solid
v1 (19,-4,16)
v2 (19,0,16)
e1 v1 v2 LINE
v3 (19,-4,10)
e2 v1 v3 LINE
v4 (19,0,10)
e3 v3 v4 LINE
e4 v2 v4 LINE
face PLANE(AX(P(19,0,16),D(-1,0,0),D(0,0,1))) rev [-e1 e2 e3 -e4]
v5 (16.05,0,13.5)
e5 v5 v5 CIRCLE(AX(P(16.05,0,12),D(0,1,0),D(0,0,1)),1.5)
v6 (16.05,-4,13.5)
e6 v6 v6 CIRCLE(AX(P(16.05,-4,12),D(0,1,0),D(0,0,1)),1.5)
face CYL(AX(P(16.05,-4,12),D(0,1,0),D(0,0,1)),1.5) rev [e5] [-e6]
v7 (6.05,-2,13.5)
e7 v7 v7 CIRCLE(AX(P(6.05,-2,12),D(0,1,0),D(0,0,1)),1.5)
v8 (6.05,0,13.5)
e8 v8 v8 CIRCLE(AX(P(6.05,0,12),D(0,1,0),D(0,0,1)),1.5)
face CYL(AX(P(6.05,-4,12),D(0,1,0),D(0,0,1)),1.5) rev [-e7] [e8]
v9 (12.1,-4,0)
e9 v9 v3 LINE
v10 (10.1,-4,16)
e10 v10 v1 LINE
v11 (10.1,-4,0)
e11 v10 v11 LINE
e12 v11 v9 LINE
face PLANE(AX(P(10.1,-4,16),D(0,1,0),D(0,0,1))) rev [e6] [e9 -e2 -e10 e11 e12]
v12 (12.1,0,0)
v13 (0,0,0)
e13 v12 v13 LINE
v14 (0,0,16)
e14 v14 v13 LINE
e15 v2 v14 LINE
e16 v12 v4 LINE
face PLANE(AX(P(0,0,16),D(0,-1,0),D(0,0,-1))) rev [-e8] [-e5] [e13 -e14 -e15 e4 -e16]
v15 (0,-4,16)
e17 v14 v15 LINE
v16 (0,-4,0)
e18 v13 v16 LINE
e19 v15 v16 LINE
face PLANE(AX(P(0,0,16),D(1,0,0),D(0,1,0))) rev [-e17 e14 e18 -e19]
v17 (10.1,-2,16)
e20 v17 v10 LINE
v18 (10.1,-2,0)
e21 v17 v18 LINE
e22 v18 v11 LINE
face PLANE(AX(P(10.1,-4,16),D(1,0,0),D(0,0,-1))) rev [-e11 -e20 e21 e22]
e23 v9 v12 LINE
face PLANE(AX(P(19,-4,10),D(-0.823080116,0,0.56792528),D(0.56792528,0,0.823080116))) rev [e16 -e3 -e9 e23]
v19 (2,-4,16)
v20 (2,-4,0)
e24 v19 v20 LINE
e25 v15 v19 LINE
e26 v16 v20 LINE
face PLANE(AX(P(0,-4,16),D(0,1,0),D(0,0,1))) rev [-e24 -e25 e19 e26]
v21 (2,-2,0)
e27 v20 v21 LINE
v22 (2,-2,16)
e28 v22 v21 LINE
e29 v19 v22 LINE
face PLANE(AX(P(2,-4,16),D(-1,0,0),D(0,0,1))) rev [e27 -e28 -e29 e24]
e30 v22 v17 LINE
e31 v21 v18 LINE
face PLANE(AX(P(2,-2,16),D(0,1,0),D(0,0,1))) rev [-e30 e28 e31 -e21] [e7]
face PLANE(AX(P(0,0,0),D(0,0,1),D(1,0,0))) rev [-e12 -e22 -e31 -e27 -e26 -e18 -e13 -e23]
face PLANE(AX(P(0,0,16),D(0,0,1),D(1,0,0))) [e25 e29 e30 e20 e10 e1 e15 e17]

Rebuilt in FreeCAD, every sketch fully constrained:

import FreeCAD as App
import Part
import Sketcher
from FreeCAD import Vector


def add_polygon(sketch, points):
    """Adds a closed chain of lines whose ends are joined by coincident constraints."""
    first, n = sketch.GeometryCount, len(points)
    for a, b in zip(points, points[1:] + points[:1]):
        sketch.addGeometry(Part.LineSegment(App.Vector(*a, 0), App.Vector(*b, 0)), False)
    for i in range(n):
        sketch.addConstraint(Sketcher.Constraint("Coincident", first + i, 2, first + (i + 1) % n, 1))

doc = App.newDocument("Part")
body = doc.addObject("PartDesign::Body", "Body")

sketch1 = body.newObject("Sketcher::SketchObject", "Sketch")
sketch1.AttachmentSupport = (doc.getObject("XY_Plane"), [""])
sketch1.MapMode = "FlatFace"
add_polygon(sketch1, [(10.1, -4), (19, -4), (19, 0), (0, 0), (0, -4), (2, -4), (2, -2), (10.1, -2)])
sketch1.addConstraint(Sketcher.Constraint("Horizontal", 0))
sketch1.addConstraint(Sketcher.Constraint("Vertical", 1))
sketch1.addConstraint(Sketcher.Constraint("Horizontal", 2))
sketch1.addConstraint(Sketcher.Constraint("Vertical", 3))
sketch1.addConstraint(Sketcher.Constraint("Horizontal", 4))
sketch1.addConstraint(Sketcher.Constraint("Vertical", 5))
sketch1.addConstraint(Sketcher.Constraint("Horizontal", 6))
sketch1.addConstraint(Sketcher.Constraint("Vertical", 7))
sketch1.addConstraint(Sketcher.Constraint("Coincident", 2, 2, -1, 1))
sketch1.addConstraint(Sketcher.Constraint("Horizontal", 0, 2, 3, 2))
sketch1.addConstraint(Sketcher.Constraint("Equal", 4, 5))
sketch1.addConstraint(Sketcher.Constraint("DistanceX", 2, 2, 2, 1, 19.0))
sketch1.addConstraint(Sketcher.Constraint("DistanceX", 4, 1, 4, 2, 2.0))
sketch1.addConstraint(Sketcher.Constraint("DistanceY", 1, 1, 1, 2, 4.0))
sketch1.addConstraint(Sketcher.Constraint("DistanceX", 0, 1, 0, 2, 8.9))
pad1 = body.newObject("PartDesign::Pad", "Pad")
pad1.Profile = sketch1
pad1.Length = 16

sketch2 = body.newObject("Sketcher::SketchObject", "Sketch001")
sketch2.AttachmentSupport = (doc.getObject("XZ_Plane"), [""])
sketch2.MapMode = "FlatFace"
sketch2.addGeometry(Part.Circle(Vector(6.05, 12, 0), Vector(0, 0, 1), 1.5), False)
sketch2.addGeometry(Part.Circle(Vector(16.05, 12, 0), Vector(0, 0, 1), 1.5), False)
add_polygon(sketch2, [(19, 0), (12.1, 0), (19, 10)])
sketch2.addConstraint(Sketcher.Constraint("Horizontal", 2))
sketch2.addConstraint(Sketcher.Constraint("Vertical", 4))
sketch2.addConstraint(Sketcher.Constraint("Equal", 0, 1))
sketch2.addConstraint(Sketcher.Constraint("PointOnObject", 2, 2, -1))
sketch2.addConstraint(Sketcher.Constraint("Horizontal", 0, 3, 1, 3))
sketch2.addConstraint(Sketcher.Constraint("Diameter", 0, 3.0))
sketch2.addConstraint(Sketcher.Constraint("DistanceY", 4, 2, 4, 1, 10.0))
sketch2.addConstraint(Sketcher.Constraint("DistanceX", 2, 2, 2, 1, 6.9))
sketch2.addConstraint(Sketcher.Constraint("DistanceY", -1, 1, 0, 3, 12.0))
sketch2.addConstraint(Sketcher.Constraint("DistanceX", -1, 1, 3, 2, 19.0))
sketch2.addConstraint(Sketcher.Constraint("DistanceX", 0, 3, 1, 3, 10.0))
sketch2.addConstraint(Sketcher.Constraint("DistanceX", -1, 1, 0, 3, 6.05))
pocket1 = body.newObject("PartDesign::Pocket", "Pocket")
pocket1.Profile = sketch2
pocket1.Type = "ThroughAll"
pocket1.Reversed = True

doc.recompute()
